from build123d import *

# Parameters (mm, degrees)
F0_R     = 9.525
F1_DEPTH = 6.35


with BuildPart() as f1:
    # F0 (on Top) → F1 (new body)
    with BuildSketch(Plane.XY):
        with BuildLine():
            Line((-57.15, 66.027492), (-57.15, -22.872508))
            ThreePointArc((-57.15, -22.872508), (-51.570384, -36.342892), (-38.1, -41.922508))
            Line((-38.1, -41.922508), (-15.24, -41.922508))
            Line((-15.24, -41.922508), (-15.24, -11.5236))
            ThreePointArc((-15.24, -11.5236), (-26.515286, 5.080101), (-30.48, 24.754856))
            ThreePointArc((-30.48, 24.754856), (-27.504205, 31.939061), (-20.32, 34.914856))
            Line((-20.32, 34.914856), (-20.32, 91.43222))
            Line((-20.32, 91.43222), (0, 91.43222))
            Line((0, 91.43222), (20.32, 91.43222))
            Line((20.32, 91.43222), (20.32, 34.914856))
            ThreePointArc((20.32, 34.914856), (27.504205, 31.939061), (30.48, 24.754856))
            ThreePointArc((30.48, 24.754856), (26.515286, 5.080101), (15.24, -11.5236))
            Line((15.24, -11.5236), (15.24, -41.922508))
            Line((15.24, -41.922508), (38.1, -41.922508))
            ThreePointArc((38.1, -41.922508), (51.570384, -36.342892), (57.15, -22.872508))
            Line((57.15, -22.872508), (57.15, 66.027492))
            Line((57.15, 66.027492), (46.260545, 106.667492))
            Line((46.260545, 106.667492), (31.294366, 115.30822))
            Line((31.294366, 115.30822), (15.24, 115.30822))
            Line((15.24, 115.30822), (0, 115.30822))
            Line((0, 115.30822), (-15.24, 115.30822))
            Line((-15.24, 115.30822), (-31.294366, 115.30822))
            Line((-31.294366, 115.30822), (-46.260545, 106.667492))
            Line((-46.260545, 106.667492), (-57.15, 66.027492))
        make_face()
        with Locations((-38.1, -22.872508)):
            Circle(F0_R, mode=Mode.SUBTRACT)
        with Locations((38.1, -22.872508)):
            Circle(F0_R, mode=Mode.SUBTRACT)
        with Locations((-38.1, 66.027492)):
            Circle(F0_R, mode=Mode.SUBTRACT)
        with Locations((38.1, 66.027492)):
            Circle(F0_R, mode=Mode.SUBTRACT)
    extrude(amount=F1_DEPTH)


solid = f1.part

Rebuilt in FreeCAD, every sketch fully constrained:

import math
import FreeCAD as App
import Part
import Sketcher
Q = App.Units.Quantity

doc = App.newDocument("Part")
body = doc.addObject("PartDesign::Body", "Body")

sketch1 = body.newObject("Sketcher::SketchObject", "Sketch")
sketch1.AttachmentSupport = (doc.getObject("XY_Plane"), [""])
sketch1.MapMode = "FlatFace"
sketch1.addGeometry(Part.LineSegment(App.Vector(-57, 66, 0), App.Vector(-57, -23, 0)), False)
sketch1.addGeometry(Part.ArcOfCircle(Part.Circle(App.Vector(-38, -23, 0), App.Vector(0, 0, 1), 19), math.radians(-180), math.radians(-90)), False)
sketch1.addGeometry(Part.LineSegment(App.Vector(-38, -42, 0), App.Vector(-15, -42, 0)), False)
sketch1.addGeometry(Part.LineSegment(App.Vector(-15, -42, 0), App.Vector(-15, -12, 0)), False)
sketch1.addGeometry(Part.ArcOfCircle(Part.Circle(App.Vector(20, 25, 0), App.Vector(0, 0, 1), 51), math.radians(180), math.radians(226)), False)
sketch1.addGeometry(Part.ArcOfCircle(Part.Circle(App.Vector(-20, 25, 0), App.Vector(0, 0, 1), 10), math.radians(90), math.radians(180)), False)
sketch1.addGeometry(Part.LineSegment(App.Vector(-20, 35, 0), App.Vector(-20, 91, 0)), False)
sketch1.addGeometry(Part.LineSegment(App.Vector(-20, 91, 0), App.Vector(20, 91, 0)), False)
sketch1.addGeometry(Part.LineSegment(App.Vector(20, 91, 0), App.Vector(20, 35, 0)), False)
sketch1.addGeometry(Part.ArcOfCircle(Part.Circle(App.Vector(20, 25, 0), App.Vector(0, 0, 1), 10), math.radians(0), math.radians(90)), False)
sketch1.addGeometry(Part.ArcOfCircle(Part.Circle(App.Vector(-20, 25, 0), App.Vector(0, 0, 1), 51), math.radians(-46), math.radians(0)), False)
sketch1.addGeometry(Part.LineSegment(App.Vector(15, -12, 0), App.Vector(15, -42, 0)), False)
sketch1.addGeometry(Part.LineSegment(App.Vector(15, -42, 0), App.Vector(38, -42, 0)), False)
sketch1.addGeometry(Part.ArcOfCircle(Part.Circle(App.Vector(38, -23, 0), App.Vector(0, 0, 1), 19), math.radians(-90), math.radians(0)), False)
sketch1.addGeometry(Part.LineSegment(App.Vector(57, -23, 0), App.Vector(57, 66, 0)), False)
sketch1.addGeometry(Part.LineSegment(App.Vector(57, 66, 0), App.Vector(46, 107, 0)), False)
sketch1.addGeometry(Part.LineSegment(App.Vector(46, 107, 0), App.Vector(31, 115, 0)), False)
sketch1.addGeometry(Part.LineSegment(App.Vector(31, 115, 0), App.Vector(-31, 115, 0)), False)
sketch1.addGeometry(Part.LineSegment(App.Vector(-31, 115, 0), App.Vector(-46, 107, 0)), False)
sketch1.addGeometry(Part.LineSegment(App.Vector(-46, 107, 0), App.Vector(-57, 66, 0)), False)
sketch1.addGeometry(Part.Circle(App.Vector(-38, -23, 0), App.Vector(0, 0, 1), 10), False)
sketch1.addGeometry(Part.Circle(App.Vector(38, -23, 0), App.Vector(0, 0, 1), 10), False)
sketch1.addGeometry(Part.Circle(App.Vector(-38, 66, 0), App.Vector(0, 0, 1), 10), False)
sketch1.addGeometry(Part.Circle(App.Vector(38, 66, 0), App.Vector(0, 0, 1), 10), False)
sketch1.addConstraint(Sketcher.Constraint("Tangent", 0, 2, 1, 1))
sketch1.addConstraint(Sketcher.Constraint("Tangent", 1, 2, 2, 1))
sketch1.addConstraint(Sketcher.Constraint("Coincident", 2, 2, 3, 1))
sketch1.addConstraint(Sketcher.Constraint("Coincident", 3, 2, 4, 2))
sketch1.addConstraint(Sketcher.Constraint("Tangent", 4, 1, 5, 2))
sketch1.addConstraint(Sketcher.Constraint("Coincident", 5, 1, 6, 1))
sketch1.addConstraint(Sketcher.Constraint("Coincident", 6, 2, 7, 1))
sketch1.addConstraint(Sketcher.Constraint("Coincident", 7, 2, 8, 1))
sketch1.addConstraint(Sketcher.Constraint("Coincident", 8, 2, 9, 2))
sketch1.addConstraint(Sketcher.Constraint("Tangent", 9, 1, 10, 2))
sketch1.addConstraint(Sketcher.Constraint("Coincident", 10, 1, 11, 1))
sketch1.addConstraint(Sketcher.Constraint("Coincident", 11, 2, 12, 1))
sketch1.addConstraint(Sketcher.Constraint("Tangent", 12, 2, 13, 1))
sketch1.addConstraint(Sketcher.Constraint("Tangent", 13, 2, 14, 1))
sketch1.addConstraint(Sketcher.Constraint("Coincident", 14, 2, 15, 1))
sketch1.addConstraint(Sketcher.Constraint("Coincident", 15, 2, 16, 1))
sketch1.addConstraint(Sketcher.Constraint("Coincident", 16, 2, 17, 1))
sketch1.addConstraint(Sketcher.Constraint("Coincident", 17, 2, 18, 1))
sketch1.addConstraint(Sketcher.Constraint("Coincident", 18, 2, 19, 1))
sketch1.addConstraint(Sketcher.Constraint("Coincident", 19, 2, 0, 1))
sketch1.addConstraint(Sketcher.Constraint("Vertical", 0))
sketch1.addConstraint(Sketcher.Constraint("Horizontal", 2))
sketch1.addConstraint(Sketcher.Constraint("Vertical", 3))
sketch1.addConstraint(Sketcher.Constraint("Vertical", 6))
sketch1.addConstraint(Sketcher.Constraint("Horizontal", 7))
sketch1.addConstraint(Sketcher.Constraint("Vertical", 8))
sketch1.addConstraint(Sketcher.Constraint("Vertical", 11))
sketch1.addConstraint(Sketcher.Constraint("Horizontal", 12))
sketch1.addConstraint(Sketcher.Constraint("Vertical", 14))
sketch1.addConstraint(Sketcher.Constraint("Horizontal", 17))
sketch1.addConstraint(Sketcher.Constraint("Coincident", 9, 3, 4, 3))
sketch1.addConstraint(Sketcher.Constraint("Coincident", 10, 3, 5, 3))
sketch1.addConstraint(Sketcher.Constraint("Coincident", 20, 3, 1, 3))
sketch1.addConstraint(Sketcher.Constraint("Coincident", 21, 3, 13, 3))
sketch1.addConstraint(Sketcher.Constraint("Equal", 5, 9))
sketch1.addConstraint(Sketcher.Constraint("Equal", 1, 13))
sketch1.addConstraint(Sketcher.Constraint("Equal", 20, 21))
sketch1.addConstraint(Sketcher.Constraint("Equal", 21, 22))
sketch1.addConstraint(Sketcher.Constraint("Equal", 22, 23))
sketch1.addConstraint(Sketcher.Constraint("Symmetric", 4, 3, 5, 3, -2))
sketch1.addConstraint(Sketcher.Constraint("Symmetric", 1, 3, 13, 3, -2))
sketch1.addConstraint(Sketcher.Constraint("Symmetric", 22, 3, 23, 3, -2))
sketch1.addConstraint(Sketcher.Constraint("Symmetric", 15, 2, 18, 2, -2))
sketch1.addConstraint(Sketcher.Constraint("Horizontal", 3, 2, 10, 1))
sketch1.addConstraint(Sketcher.Constraint("Horizontal", 23, 3, 14, 2))
sketch1.addConstraint(Sketcher.Constraint("Horizontal", 14, 2, 19, 2))
sketch1.addConstraint(Sketcher.Constraint("Vertical", 20, 3, 22, 3))
sketch1.addConstraint(Sketcher.Constraint("Vertical", 10, 3, 5, 1))
sketch1.addConstraint(Sketcher.Constraint("Vertical", 9, 3, 7, 2))
sketch1.addConstraint(Sketcher.Constraint("Equal", 16, 18))
sketch1.addConstraint(Sketcher.Constraint("Radius", 4, Q("1.9999999 in")))
sketch1.addConstraint(Sketcher.Constraint("Radius", 5, Q("0.4 in")))
sketch1.addConstraint(Sketcher.Constraint("Diameter", 20, Q("0.75 in")))
sketch1.addConstraint(Sketcher.Constraint("Radius", 1, Q("0.75 in")))
sketch1.addConstraint(Sketcher.Constraint("DistanceX", 2, 1, 2, 2, Q("0.9 in")))
sketch1.addConstraint(Sketcher.Constraint("DistanceY", 0, 2, 0, 1, Q("3.5 in")))
sketch1.addConstraint(Sketcher.Constraint("Angle", 15, Q("105 deg")))
sketch1.addConstraint(Sketcher.Constraint("Angle", 16, Q("149.999998 deg")))
sketch1.addConstraint(Sketcher.Constraint("DistanceX", 1, 3, 13, 3, Q("3 in")))
sketch1.addConstraint(Sketcher.Constraint("DistanceY", 23, 3, 15, 2, Q("1.6 in")))
sketch1.addConstraint(Sketcher.Constraint("DistanceY", 7, 2, 16, 2, Q("0.94 in")))
sketch1.addConstraint(Sketcher.Constraint("DistanceY", 3, 2, -1, 1, Q("11.5236 mm")))
sketch1.addConstraint(Sketcher.Constraint("DistanceX", 17, 2, 17, 1, Q("62.588732 mm")))
sketch1.addConstraint(Sketcher.Constraint("DistanceY", 3, 1, 3, 2, Q("30.398908 mm")))
pad1 = body.newObject("PartDesign::Pad", "Pad")
pad1.Profile = sketch1
pad1.Length = Q("0.25 in")

doc.recompute()
